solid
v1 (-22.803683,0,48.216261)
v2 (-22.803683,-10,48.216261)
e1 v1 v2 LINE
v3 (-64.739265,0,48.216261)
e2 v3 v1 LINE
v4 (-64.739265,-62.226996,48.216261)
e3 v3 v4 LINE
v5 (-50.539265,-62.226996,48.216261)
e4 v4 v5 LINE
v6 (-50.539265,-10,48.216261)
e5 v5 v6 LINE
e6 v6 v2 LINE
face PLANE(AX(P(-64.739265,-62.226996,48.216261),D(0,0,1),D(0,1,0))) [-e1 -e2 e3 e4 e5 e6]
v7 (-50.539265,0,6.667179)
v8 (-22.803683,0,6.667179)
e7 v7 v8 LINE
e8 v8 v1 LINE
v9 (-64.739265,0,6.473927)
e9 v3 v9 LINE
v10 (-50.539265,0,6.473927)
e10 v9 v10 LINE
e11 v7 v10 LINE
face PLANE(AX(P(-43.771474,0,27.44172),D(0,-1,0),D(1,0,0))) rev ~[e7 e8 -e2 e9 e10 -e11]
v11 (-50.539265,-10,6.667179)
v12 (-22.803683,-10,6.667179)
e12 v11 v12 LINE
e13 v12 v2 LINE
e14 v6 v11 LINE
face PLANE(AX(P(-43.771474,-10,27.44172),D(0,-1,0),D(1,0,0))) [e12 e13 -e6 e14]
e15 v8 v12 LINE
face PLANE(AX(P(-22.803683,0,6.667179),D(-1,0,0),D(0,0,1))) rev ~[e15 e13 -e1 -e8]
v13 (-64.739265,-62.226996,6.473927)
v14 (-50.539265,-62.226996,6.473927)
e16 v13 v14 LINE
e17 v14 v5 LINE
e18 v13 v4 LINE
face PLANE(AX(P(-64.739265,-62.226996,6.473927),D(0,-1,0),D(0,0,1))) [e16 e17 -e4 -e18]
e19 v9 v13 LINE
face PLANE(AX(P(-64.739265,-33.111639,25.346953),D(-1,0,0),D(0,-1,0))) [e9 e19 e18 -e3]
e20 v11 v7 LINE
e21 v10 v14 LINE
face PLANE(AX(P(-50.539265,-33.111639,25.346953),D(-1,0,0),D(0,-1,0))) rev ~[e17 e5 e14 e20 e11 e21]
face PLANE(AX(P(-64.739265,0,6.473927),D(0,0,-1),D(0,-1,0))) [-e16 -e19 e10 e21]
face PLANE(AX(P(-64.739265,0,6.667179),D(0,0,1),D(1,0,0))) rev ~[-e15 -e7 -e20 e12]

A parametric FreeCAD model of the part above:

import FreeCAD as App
import Part
import Sketcher

V = App.Vector

doc = App.newDocument("Part")
params = doc.addObject("Spreadsheet::Sheet", "Params")
for row, (alias, value) in enumerate([
    ("pad1_length", "10 mm"),
    ("sketch2_width", "10 mm"),
    ("pad2_length", "14.2 mm"),
], start=1):
    params.set(f"A{row}", alias)
    params.set(f"B{row}", "=" + value)
    params.setAlias(f"B{row}", alias)

body = doc.addObject("PartDesign::Body", "Body")

sketch1 = doc.addObject("Sketcher::SketchObject", "Sketch")
body.addObject(sketch1)
sketch1.AttachmentSupport = (doc.XZ_Plane, [""])
sketch1.MapMode = "FlatFace"
sketch1.addGeometry([
    Part.LineSegment(V(-65, 48, 0), V(-65, 7, 0)),
    Part.LineSegment(V(-65, 7, 0), V(-23, 7, 0)),
    Part.LineSegment(V(-23, 7, 0), V(-23, 48, 0)),
    Part.LineSegment(V(-23, 48, 0), V(-65, 48, 0)),
], False)
sketch1.addConstraint([
    Sketcher.Constraint("Coincident", 0, 2, 1, 1),
    Sketcher.Constraint("Coincident", 1, 2, 2, 1),
    Sketcher.Constraint("Coincident", 2, 2, 3, 1),
    Sketcher.Constraint("Coincident", 3, 2, 0, 1),
    Sketcher.Constraint("Vertical", 0),
    Sketcher.Constraint("Horizontal", 1),
    Sketcher.Constraint("Vertical", 2),
    Sketcher.Constraint("Horizontal", 3),
    Sketcher.Constraint("DistanceX", 1, 1, 1, 2, 41.935582),
    Sketcher.Constraint("DistanceY", 0, 2, 0, 1, 41.549082),
    Sketcher.Constraint("DistanceY", -1, 1, 0, 2, 6.667179),
    Sketcher.Constraint("DistanceX", 0, 2, -1, 1, 64.739265),
])
pad1 = doc.addObject("PartDesign::Pad", "Pad")
body.addObject(pad1)
pad1.Profile = sketch1
pad1.setExpression("Length", "Params.pad1_length")

sketch2 = doc.addObject("Sketcher::SketchObject", "Sketch001")
body.addObject(sketch2)
sketch2.AttachmentSupport = (doc.YZ_Plane, [""])
sketch2.MapMode = "FlatFace"
sketch2.AttachmentOffset = App.Placement(V(0, 0, -64.739265), App.Rotation())
sketch2.addGeometry([
    Part.LineSegment(V(-62.23, 48.22, 0), V(-10, 48.22, 0)),
    Part.LineSegment(V(-10, 48.22, 0), V(-10, 6.67, 0)),
    Part.LineSegment(V(-10, 6.67, 0), V(0, 6.67, 0)),
    Part.LineSegment(V(0, 6.67, 0), V(0, 6.47, 0)),
    Part.LineSegment(V(0, 6.47, 0), V(-62.23, 6.47, 0)),
    Part.LineSegment(V(-62.23, 6.47, 0), V(-62.23, 48.22, 0)),
], False)
sketch2.addConstraint([
    Sketcher.Constraint("Coincident", 0, 2, 1, 1),
    Sketcher.Constraint("Coincident", 1, 2, 2, 1),
    Sketcher.Constraint("Coincident", 2, 2, 3, 1),
    Sketcher.Constraint("Coincident", 3, 2, 4, 1),
    Sketcher.Constraint("Coincident", 4, 2, 5, 1),
    Sketcher.Constraint("Coincident", 5, 2, 0, 1),
    Sketcher.Constraint("Horizontal", 0),
    Sketcher.Constraint("Vertical", 1),
    Sketcher.Constraint("Horizontal", 2),
    Sketcher.Constraint("Vertical", 3),
    Sketcher.Constraint("Horizontal", 4),
    Sketcher.Constraint("Vertical", 5),
    Sketcher.Constraint("PointOnObject", 2, 2, -2),
    Sketcher.Constraint("DistanceX", 2, 1, 2, 2, 10.0),
    Sketcher.Constraint("DistanceX", 0, 1, 0, 2, 52.226996),
    Sketcher.Constraint("DistanceY", 1, 2, 1, 1, 41.549082),
    Sketcher.Constraint("DistanceY", 3, 2, 3, 1, 0.193252),
    Sketcher.Constraint("DistanceY", -1, 1, 0, 2, 48.216261),
])
sketch2.setExpression("Constraints[13]", "Params.sketch2_width")
pad2 = doc.addObject("PartDesign::Pad", "Pad001")
body.addObject(pad2)
pad2.Profile = sketch2
pad2.setExpression("Length", "Params.pad2_length")

doc.recompute()
